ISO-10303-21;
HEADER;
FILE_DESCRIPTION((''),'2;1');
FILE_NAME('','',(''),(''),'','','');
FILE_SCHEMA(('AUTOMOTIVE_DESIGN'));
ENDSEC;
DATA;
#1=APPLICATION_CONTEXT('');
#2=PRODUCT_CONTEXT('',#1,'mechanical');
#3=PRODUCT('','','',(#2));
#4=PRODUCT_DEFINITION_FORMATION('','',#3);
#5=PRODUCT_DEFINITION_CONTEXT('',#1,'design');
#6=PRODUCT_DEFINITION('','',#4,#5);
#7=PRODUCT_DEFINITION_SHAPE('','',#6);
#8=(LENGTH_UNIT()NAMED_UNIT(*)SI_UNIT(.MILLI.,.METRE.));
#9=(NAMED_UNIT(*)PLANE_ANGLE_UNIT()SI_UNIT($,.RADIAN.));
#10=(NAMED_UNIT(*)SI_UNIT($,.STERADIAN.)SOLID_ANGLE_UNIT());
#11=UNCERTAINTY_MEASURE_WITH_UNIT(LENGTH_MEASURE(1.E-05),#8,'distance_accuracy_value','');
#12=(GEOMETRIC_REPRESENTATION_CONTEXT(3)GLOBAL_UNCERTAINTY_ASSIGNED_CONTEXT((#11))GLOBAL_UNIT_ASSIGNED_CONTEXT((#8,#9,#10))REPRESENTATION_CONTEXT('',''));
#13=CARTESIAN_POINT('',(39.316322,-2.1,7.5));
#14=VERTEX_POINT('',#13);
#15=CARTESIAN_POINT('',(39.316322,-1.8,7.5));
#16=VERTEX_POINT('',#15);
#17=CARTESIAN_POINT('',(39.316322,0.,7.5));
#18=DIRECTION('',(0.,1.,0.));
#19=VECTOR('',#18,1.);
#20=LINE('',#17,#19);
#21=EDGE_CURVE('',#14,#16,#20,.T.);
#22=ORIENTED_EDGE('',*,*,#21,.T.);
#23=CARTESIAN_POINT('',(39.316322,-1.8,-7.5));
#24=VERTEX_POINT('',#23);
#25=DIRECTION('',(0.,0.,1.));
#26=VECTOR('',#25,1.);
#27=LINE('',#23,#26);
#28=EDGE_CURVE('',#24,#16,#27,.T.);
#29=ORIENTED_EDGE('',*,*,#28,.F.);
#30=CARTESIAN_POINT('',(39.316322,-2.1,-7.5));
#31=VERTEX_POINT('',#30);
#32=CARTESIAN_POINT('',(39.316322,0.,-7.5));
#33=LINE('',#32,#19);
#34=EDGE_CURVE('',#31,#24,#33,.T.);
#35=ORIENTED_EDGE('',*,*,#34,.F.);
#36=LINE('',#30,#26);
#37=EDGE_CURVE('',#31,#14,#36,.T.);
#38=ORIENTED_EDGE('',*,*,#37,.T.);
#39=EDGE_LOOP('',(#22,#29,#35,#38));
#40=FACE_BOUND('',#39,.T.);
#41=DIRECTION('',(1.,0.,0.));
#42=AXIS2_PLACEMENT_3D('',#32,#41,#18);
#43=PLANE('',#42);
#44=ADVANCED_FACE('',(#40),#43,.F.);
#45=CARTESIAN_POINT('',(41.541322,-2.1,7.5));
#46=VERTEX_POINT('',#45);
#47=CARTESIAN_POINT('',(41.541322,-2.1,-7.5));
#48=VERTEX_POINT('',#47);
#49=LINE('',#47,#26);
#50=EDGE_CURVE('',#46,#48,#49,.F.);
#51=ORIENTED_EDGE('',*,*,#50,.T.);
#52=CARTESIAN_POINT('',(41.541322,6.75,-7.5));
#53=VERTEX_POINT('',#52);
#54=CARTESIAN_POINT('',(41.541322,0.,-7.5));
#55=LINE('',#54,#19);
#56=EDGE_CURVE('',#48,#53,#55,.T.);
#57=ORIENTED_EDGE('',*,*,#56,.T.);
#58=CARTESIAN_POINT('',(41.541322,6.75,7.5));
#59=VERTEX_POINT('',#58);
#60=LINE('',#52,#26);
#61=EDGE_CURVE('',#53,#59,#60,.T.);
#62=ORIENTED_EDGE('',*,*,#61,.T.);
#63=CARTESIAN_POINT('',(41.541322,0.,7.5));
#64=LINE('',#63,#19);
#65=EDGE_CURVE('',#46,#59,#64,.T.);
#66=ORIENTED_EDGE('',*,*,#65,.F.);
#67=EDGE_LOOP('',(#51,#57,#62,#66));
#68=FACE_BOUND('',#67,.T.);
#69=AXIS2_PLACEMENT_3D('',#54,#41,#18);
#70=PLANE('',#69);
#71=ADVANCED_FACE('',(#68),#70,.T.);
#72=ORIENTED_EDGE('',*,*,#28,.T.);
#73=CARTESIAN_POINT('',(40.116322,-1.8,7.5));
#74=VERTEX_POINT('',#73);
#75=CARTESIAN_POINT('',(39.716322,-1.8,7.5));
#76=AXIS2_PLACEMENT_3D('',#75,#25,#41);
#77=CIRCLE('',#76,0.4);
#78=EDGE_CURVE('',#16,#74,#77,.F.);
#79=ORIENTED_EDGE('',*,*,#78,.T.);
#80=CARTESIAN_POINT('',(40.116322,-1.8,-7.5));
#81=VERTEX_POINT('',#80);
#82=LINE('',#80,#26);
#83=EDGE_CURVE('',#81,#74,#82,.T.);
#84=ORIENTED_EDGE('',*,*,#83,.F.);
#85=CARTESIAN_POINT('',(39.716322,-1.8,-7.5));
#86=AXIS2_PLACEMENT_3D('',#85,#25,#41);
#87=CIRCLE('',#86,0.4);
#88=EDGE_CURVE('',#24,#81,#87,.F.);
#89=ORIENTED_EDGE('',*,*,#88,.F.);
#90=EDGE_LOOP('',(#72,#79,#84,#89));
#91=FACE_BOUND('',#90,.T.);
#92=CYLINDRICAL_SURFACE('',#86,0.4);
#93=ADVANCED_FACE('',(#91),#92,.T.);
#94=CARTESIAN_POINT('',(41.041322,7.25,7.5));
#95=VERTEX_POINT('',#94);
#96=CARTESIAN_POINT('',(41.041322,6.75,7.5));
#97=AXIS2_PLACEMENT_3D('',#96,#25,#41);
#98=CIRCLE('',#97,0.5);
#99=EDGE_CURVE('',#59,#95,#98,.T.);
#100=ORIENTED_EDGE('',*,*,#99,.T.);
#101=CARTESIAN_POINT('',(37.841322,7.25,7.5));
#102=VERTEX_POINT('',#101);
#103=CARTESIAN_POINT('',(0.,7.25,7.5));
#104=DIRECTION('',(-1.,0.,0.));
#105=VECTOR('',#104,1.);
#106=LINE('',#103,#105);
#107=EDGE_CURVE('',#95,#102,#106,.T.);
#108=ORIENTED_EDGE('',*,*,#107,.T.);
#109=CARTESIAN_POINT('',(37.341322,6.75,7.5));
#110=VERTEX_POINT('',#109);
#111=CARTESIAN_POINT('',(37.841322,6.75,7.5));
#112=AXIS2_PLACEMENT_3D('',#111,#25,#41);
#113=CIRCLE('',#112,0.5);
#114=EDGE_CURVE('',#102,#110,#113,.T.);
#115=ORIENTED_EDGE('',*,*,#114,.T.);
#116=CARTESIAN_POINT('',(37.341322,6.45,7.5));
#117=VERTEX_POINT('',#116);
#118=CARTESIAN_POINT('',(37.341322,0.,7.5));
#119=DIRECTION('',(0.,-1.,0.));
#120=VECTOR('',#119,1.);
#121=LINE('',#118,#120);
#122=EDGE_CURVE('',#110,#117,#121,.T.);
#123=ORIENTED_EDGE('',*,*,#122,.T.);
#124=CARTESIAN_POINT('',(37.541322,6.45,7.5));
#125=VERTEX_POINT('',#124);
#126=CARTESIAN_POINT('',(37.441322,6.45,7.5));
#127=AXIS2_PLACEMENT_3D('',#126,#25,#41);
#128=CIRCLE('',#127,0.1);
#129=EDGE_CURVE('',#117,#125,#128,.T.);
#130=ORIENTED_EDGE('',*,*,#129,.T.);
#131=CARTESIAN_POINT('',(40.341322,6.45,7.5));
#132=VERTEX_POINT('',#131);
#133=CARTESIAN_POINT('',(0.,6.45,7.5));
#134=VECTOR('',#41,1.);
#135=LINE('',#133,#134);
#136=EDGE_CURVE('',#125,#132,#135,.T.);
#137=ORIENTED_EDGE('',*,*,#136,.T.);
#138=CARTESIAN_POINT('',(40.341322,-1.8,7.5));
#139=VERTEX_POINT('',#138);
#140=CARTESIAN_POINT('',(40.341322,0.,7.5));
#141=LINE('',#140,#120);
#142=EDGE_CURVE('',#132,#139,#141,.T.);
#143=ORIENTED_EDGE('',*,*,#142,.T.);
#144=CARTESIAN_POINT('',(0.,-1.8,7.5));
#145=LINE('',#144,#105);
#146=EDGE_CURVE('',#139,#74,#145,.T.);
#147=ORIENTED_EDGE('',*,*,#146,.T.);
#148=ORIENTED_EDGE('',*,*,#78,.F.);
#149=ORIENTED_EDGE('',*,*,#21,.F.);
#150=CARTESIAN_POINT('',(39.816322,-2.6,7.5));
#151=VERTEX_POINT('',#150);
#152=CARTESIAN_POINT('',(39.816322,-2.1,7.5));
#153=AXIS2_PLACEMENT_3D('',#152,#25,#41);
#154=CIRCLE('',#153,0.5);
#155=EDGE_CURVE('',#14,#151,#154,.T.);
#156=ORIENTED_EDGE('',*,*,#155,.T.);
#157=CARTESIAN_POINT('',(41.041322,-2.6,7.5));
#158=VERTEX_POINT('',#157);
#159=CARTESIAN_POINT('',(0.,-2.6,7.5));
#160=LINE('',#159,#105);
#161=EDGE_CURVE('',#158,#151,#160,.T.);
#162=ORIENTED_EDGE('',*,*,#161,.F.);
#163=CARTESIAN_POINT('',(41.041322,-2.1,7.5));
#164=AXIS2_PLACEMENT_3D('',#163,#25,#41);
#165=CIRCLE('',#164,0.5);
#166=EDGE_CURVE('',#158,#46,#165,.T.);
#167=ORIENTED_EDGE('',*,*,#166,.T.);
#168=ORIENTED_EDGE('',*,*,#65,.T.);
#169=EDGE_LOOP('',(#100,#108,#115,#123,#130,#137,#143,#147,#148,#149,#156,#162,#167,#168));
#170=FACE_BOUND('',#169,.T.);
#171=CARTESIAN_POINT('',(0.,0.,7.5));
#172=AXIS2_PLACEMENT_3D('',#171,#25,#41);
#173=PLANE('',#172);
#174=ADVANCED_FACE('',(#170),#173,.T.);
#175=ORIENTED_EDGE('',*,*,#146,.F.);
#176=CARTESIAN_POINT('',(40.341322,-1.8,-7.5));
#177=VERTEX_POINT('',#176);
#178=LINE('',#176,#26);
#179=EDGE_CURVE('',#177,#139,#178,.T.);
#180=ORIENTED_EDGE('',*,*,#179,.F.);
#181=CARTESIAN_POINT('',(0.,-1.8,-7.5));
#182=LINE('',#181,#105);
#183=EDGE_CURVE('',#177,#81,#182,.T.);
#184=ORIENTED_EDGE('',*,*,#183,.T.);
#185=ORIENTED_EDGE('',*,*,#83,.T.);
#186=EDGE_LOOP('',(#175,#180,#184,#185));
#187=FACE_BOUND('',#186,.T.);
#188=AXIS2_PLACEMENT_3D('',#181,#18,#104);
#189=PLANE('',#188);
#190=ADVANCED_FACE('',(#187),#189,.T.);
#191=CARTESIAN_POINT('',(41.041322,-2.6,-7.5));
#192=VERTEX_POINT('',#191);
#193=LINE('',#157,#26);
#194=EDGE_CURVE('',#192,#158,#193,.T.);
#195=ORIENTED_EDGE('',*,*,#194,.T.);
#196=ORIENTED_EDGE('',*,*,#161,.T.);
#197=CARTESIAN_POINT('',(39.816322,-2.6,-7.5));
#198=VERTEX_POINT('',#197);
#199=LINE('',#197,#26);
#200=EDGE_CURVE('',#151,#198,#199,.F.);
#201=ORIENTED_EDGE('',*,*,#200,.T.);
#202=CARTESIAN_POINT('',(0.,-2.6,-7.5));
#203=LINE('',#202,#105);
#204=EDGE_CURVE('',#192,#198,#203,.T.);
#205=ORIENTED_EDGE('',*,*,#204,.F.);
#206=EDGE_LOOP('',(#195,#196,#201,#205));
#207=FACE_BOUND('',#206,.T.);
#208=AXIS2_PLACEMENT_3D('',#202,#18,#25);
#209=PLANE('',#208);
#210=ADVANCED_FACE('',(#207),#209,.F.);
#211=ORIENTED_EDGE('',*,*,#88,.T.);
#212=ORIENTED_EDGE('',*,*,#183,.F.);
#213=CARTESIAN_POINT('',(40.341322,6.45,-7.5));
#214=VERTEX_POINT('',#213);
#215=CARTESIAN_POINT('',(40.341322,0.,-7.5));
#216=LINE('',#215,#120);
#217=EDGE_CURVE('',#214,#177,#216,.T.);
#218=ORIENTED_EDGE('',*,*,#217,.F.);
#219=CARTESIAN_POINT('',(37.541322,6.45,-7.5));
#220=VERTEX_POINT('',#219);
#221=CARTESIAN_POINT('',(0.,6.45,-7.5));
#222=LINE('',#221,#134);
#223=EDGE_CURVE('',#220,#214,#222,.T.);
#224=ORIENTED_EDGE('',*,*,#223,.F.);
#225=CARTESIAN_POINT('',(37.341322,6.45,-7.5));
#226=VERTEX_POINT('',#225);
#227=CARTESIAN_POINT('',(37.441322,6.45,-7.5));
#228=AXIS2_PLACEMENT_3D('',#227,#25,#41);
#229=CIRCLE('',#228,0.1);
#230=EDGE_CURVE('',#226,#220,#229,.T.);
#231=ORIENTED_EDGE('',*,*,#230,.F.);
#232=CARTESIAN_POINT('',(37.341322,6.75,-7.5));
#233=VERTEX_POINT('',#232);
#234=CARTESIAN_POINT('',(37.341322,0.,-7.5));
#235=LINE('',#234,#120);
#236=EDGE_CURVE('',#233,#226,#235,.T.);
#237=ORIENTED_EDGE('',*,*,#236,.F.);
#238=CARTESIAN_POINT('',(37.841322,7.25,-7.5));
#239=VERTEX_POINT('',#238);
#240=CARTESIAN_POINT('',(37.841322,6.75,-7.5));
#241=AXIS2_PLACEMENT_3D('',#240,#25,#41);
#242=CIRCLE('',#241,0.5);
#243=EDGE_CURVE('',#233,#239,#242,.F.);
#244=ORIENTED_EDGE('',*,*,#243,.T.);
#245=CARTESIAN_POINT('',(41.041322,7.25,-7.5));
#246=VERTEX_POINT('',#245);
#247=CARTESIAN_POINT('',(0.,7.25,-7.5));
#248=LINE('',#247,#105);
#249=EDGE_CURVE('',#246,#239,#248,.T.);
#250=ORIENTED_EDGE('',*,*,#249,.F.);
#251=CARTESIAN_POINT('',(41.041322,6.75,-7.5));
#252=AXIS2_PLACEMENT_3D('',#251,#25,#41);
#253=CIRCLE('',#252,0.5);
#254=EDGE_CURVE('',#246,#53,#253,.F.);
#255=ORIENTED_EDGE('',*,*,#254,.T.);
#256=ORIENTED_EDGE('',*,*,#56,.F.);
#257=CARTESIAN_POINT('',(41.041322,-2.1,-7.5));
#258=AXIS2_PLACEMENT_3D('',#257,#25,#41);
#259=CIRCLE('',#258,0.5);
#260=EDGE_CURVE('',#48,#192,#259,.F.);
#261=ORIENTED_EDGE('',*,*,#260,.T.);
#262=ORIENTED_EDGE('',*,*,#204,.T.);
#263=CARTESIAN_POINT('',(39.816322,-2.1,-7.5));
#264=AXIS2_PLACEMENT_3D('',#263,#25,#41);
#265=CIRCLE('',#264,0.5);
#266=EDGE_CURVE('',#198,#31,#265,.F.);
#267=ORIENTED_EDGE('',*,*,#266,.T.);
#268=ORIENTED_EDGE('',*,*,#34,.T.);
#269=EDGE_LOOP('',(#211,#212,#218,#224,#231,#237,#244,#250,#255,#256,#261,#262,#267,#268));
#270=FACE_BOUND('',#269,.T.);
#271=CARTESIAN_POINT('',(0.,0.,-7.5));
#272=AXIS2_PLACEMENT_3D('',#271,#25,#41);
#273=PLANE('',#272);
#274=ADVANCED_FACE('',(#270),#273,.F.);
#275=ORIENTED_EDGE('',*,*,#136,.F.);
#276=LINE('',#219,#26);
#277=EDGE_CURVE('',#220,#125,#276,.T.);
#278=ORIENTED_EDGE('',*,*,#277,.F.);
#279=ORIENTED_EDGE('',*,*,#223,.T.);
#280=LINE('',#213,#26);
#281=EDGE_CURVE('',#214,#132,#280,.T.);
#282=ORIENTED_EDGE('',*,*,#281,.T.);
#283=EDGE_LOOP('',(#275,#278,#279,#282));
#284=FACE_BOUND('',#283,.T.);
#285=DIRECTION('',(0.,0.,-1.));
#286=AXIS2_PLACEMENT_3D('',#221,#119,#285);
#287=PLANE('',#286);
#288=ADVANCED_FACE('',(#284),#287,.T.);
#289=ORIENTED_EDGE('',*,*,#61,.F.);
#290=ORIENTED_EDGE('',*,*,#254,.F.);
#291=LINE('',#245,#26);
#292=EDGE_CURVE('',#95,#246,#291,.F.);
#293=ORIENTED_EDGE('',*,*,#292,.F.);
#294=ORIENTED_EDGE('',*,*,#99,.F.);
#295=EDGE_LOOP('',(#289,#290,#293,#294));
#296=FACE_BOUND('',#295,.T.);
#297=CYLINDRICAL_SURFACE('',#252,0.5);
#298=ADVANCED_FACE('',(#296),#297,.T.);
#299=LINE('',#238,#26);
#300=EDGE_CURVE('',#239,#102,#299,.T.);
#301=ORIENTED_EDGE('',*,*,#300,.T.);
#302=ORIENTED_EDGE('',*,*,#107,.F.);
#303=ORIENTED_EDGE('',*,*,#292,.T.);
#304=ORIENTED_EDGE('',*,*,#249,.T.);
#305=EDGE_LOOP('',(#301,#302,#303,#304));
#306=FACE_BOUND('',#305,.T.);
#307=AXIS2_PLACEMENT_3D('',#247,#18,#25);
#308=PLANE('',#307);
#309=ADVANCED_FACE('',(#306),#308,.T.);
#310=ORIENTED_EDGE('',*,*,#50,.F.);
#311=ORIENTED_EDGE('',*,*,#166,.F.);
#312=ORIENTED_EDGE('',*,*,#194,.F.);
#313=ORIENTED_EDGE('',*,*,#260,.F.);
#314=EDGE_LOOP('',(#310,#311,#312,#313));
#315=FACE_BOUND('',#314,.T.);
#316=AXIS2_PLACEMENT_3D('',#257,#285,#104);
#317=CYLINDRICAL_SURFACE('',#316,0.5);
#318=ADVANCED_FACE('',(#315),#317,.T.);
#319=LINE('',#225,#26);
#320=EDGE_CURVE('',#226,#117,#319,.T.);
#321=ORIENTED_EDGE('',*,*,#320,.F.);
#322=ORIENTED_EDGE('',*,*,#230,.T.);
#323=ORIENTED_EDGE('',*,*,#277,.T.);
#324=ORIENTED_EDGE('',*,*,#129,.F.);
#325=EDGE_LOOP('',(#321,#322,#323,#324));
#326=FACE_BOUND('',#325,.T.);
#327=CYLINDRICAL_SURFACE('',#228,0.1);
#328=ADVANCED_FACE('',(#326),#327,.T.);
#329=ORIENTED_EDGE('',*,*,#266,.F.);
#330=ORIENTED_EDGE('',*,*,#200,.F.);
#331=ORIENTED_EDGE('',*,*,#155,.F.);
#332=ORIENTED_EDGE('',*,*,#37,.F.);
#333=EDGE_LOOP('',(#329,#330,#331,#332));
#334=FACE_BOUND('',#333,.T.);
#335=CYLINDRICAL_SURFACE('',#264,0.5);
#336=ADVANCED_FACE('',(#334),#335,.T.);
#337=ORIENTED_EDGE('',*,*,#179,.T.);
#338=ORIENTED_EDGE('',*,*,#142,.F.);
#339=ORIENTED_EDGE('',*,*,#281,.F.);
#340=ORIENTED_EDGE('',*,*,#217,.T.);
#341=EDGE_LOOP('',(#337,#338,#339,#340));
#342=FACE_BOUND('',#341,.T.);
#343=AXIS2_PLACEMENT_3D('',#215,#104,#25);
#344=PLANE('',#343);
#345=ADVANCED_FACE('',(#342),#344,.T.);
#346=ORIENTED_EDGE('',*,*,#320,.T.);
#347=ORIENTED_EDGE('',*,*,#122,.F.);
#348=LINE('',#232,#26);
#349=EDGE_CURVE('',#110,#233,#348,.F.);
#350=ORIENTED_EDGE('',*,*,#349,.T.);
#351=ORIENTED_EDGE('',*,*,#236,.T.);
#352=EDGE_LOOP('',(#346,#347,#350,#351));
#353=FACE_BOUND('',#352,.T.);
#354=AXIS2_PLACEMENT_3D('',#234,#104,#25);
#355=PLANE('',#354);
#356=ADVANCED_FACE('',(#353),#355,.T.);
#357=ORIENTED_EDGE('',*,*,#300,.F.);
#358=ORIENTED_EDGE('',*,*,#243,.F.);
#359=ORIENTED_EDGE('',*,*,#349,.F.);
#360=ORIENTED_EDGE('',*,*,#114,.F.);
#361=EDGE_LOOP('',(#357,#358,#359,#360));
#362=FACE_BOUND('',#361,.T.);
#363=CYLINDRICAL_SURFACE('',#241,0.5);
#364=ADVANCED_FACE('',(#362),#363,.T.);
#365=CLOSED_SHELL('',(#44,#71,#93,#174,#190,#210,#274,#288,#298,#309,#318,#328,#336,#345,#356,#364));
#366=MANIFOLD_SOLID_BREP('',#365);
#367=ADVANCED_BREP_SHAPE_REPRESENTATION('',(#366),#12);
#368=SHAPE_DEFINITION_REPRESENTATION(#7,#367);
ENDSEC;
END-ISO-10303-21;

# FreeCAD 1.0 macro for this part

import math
import FreeCAD as App
import Part
import Sketcher


def edges_at(feature, points):
    """Names of the edges that pass closest to the given points."""
    edges = feature.Shape.Edges
    near = lambda p: min(range(len(edges)), key=lambda i: edges[i].distToShape(Part.Vertex(*p))[0])
    return sorted({f"Edge{near(p) + 1}" for p in points})

doc = App.newDocument("Part")
body = doc.addObject("PartDesign::Body", "Body")

sketch1 = body.newObject("Sketcher::SketchObject", "Sketch")
sketch1.AttachmentSupport = (doc.getObject("XY_Plane"), [""])
sketch1.MapMode = "FlatFace"
sketch1.addGeometry([
    Part.LineSegment(App.Vector(37.54, 6.45, 0), App.Vector(40.34, 6.45, 0)),
    Part.LineSegment(App.Vector(40.34, 6.45, 0), App.Vector(40.34, -1.8, 0)),
    Part.LineSegment(App.Vector(40.34, -1.8, 0), App.Vector(40.12, -1.8, 0)),
    Part.ArcOfCircle(Part.Circle(App.Vector(39.72, -1.8, 0), App.Vector(0, 0, 1), 0.4), math.radians(0), math.radians(180)),
    Part.LineSegment(App.Vector(39.32, -1.8, 0), App.Vector(39.32, -2.6, 0)),
    Part.LineSegment(App.Vector(39.32, -2.6, 0), App.Vector(41.54, -2.6, 0)),
    Part.LineSegment(App.Vector(41.54, -2.6, 0), App.Vector(41.54, 7.25, 0)),
    Part.LineSegment(App.Vector(41.54, 7.25, 0), App.Vector(37.34, 7.25, 0)),
    Part.LineSegment(App.Vector(37.34, 7.25, 0), App.Vector(37.34, 6.45, 0)),
    Part.ArcOfCircle(Part.Circle(App.Vector(37.44, 6.45, 0), App.Vector(0, 0, 1), 0.1), math.radians(180), math.radians(360)),
], False)
sketch1.addConstraint([
    Sketcher.Constraint("Coincident", 0, 2, 1, 1),
    Sketcher.Constraint("Coincident", 1, 2, 2, 1),
    Sketcher.Constraint("Coincident", 2, 2, 3, 1),
    Sketcher.Constraint("Tangent", 3, 2, 4, 1),
    Sketcher.Constraint("Coincident", 4, 2, 5, 1),
    Sketcher.Constraint("Coincident", 5, 2, 6, 1),
    Sketcher.Constraint("Coincident", 6, 2, 7, 1),
    Sketcher.Constraint("Coincident", 7, 2, 8, 1),
    Sketcher.Constraint("Tangent", 8, 2, 9, 1),
    Sketcher.Constraint("Coincident", 9, 2, 0, 1),
    Sketcher.Constraint("Horizontal", 0),
    Sketcher.Constraint("Vertical", 1),
    Sketcher.Constraint("Horizontal", 2),
    Sketcher.Constraint("Vertical", 4),
    Sketcher.Constraint("Horizontal", 5),
    Sketcher.Constraint("Vertical", 6),
    Sketcher.Constraint("Horizontal", 7),
    Sketcher.Constraint("Vertical", 8),
    Sketcher.Constraint("Horizontal", 9, 3, 0, 2),
    Sketcher.Constraint("Horizontal", 3, 3, 1, 2),
    Sketcher.Constraint("Equal", 4, 8),
    Sketcher.Constraint("Radius", 3, 0.4),
    Sketcher.Constraint("Radius", 9, 0.1),
    Sketcher.Constraint("DistanceX", 0, 1, 0, 2, 2.8),
    Sketcher.Constraint("DistanceX", 7, 2, 7, 1, 4.2),
    Sketcher.Constraint("DistanceY", 4, 2, 4, 1, 0.8),
    Sketcher.Constraint("DistanceY", 1, 2, 1, 1, 8.25),
    Sketcher.Constraint("DistanceY", 3, 3, -1, 1, 1.8),
    Sketcher.Constraint("DistanceX", 2, 2, 2, 1, 0.225),
    Sketcher.Constraint("DistanceX", -1, 1, 3, 3, 39.716322),
])
pad1 = body.newObject("PartDesign::Pad", "Pad")
pad1.Profile = sketch1
pad1.Type = "TwoLengths"
pad1.Length = 7.5
pad1.Length2 = 7.5
doc.recompute()

fillet = body.newObject("PartDesign::Fillet", "Fillet")
fillet.Base = (pad1, edges_at(pad1, [
    (37.341, 7.25, 0),
    (41.541, 7.25, 0),
    (41.541, -2.6, 0),
    (39.316, -2.6, 0),
]))
fillet.Radius = 0.5

doc.recompute()
